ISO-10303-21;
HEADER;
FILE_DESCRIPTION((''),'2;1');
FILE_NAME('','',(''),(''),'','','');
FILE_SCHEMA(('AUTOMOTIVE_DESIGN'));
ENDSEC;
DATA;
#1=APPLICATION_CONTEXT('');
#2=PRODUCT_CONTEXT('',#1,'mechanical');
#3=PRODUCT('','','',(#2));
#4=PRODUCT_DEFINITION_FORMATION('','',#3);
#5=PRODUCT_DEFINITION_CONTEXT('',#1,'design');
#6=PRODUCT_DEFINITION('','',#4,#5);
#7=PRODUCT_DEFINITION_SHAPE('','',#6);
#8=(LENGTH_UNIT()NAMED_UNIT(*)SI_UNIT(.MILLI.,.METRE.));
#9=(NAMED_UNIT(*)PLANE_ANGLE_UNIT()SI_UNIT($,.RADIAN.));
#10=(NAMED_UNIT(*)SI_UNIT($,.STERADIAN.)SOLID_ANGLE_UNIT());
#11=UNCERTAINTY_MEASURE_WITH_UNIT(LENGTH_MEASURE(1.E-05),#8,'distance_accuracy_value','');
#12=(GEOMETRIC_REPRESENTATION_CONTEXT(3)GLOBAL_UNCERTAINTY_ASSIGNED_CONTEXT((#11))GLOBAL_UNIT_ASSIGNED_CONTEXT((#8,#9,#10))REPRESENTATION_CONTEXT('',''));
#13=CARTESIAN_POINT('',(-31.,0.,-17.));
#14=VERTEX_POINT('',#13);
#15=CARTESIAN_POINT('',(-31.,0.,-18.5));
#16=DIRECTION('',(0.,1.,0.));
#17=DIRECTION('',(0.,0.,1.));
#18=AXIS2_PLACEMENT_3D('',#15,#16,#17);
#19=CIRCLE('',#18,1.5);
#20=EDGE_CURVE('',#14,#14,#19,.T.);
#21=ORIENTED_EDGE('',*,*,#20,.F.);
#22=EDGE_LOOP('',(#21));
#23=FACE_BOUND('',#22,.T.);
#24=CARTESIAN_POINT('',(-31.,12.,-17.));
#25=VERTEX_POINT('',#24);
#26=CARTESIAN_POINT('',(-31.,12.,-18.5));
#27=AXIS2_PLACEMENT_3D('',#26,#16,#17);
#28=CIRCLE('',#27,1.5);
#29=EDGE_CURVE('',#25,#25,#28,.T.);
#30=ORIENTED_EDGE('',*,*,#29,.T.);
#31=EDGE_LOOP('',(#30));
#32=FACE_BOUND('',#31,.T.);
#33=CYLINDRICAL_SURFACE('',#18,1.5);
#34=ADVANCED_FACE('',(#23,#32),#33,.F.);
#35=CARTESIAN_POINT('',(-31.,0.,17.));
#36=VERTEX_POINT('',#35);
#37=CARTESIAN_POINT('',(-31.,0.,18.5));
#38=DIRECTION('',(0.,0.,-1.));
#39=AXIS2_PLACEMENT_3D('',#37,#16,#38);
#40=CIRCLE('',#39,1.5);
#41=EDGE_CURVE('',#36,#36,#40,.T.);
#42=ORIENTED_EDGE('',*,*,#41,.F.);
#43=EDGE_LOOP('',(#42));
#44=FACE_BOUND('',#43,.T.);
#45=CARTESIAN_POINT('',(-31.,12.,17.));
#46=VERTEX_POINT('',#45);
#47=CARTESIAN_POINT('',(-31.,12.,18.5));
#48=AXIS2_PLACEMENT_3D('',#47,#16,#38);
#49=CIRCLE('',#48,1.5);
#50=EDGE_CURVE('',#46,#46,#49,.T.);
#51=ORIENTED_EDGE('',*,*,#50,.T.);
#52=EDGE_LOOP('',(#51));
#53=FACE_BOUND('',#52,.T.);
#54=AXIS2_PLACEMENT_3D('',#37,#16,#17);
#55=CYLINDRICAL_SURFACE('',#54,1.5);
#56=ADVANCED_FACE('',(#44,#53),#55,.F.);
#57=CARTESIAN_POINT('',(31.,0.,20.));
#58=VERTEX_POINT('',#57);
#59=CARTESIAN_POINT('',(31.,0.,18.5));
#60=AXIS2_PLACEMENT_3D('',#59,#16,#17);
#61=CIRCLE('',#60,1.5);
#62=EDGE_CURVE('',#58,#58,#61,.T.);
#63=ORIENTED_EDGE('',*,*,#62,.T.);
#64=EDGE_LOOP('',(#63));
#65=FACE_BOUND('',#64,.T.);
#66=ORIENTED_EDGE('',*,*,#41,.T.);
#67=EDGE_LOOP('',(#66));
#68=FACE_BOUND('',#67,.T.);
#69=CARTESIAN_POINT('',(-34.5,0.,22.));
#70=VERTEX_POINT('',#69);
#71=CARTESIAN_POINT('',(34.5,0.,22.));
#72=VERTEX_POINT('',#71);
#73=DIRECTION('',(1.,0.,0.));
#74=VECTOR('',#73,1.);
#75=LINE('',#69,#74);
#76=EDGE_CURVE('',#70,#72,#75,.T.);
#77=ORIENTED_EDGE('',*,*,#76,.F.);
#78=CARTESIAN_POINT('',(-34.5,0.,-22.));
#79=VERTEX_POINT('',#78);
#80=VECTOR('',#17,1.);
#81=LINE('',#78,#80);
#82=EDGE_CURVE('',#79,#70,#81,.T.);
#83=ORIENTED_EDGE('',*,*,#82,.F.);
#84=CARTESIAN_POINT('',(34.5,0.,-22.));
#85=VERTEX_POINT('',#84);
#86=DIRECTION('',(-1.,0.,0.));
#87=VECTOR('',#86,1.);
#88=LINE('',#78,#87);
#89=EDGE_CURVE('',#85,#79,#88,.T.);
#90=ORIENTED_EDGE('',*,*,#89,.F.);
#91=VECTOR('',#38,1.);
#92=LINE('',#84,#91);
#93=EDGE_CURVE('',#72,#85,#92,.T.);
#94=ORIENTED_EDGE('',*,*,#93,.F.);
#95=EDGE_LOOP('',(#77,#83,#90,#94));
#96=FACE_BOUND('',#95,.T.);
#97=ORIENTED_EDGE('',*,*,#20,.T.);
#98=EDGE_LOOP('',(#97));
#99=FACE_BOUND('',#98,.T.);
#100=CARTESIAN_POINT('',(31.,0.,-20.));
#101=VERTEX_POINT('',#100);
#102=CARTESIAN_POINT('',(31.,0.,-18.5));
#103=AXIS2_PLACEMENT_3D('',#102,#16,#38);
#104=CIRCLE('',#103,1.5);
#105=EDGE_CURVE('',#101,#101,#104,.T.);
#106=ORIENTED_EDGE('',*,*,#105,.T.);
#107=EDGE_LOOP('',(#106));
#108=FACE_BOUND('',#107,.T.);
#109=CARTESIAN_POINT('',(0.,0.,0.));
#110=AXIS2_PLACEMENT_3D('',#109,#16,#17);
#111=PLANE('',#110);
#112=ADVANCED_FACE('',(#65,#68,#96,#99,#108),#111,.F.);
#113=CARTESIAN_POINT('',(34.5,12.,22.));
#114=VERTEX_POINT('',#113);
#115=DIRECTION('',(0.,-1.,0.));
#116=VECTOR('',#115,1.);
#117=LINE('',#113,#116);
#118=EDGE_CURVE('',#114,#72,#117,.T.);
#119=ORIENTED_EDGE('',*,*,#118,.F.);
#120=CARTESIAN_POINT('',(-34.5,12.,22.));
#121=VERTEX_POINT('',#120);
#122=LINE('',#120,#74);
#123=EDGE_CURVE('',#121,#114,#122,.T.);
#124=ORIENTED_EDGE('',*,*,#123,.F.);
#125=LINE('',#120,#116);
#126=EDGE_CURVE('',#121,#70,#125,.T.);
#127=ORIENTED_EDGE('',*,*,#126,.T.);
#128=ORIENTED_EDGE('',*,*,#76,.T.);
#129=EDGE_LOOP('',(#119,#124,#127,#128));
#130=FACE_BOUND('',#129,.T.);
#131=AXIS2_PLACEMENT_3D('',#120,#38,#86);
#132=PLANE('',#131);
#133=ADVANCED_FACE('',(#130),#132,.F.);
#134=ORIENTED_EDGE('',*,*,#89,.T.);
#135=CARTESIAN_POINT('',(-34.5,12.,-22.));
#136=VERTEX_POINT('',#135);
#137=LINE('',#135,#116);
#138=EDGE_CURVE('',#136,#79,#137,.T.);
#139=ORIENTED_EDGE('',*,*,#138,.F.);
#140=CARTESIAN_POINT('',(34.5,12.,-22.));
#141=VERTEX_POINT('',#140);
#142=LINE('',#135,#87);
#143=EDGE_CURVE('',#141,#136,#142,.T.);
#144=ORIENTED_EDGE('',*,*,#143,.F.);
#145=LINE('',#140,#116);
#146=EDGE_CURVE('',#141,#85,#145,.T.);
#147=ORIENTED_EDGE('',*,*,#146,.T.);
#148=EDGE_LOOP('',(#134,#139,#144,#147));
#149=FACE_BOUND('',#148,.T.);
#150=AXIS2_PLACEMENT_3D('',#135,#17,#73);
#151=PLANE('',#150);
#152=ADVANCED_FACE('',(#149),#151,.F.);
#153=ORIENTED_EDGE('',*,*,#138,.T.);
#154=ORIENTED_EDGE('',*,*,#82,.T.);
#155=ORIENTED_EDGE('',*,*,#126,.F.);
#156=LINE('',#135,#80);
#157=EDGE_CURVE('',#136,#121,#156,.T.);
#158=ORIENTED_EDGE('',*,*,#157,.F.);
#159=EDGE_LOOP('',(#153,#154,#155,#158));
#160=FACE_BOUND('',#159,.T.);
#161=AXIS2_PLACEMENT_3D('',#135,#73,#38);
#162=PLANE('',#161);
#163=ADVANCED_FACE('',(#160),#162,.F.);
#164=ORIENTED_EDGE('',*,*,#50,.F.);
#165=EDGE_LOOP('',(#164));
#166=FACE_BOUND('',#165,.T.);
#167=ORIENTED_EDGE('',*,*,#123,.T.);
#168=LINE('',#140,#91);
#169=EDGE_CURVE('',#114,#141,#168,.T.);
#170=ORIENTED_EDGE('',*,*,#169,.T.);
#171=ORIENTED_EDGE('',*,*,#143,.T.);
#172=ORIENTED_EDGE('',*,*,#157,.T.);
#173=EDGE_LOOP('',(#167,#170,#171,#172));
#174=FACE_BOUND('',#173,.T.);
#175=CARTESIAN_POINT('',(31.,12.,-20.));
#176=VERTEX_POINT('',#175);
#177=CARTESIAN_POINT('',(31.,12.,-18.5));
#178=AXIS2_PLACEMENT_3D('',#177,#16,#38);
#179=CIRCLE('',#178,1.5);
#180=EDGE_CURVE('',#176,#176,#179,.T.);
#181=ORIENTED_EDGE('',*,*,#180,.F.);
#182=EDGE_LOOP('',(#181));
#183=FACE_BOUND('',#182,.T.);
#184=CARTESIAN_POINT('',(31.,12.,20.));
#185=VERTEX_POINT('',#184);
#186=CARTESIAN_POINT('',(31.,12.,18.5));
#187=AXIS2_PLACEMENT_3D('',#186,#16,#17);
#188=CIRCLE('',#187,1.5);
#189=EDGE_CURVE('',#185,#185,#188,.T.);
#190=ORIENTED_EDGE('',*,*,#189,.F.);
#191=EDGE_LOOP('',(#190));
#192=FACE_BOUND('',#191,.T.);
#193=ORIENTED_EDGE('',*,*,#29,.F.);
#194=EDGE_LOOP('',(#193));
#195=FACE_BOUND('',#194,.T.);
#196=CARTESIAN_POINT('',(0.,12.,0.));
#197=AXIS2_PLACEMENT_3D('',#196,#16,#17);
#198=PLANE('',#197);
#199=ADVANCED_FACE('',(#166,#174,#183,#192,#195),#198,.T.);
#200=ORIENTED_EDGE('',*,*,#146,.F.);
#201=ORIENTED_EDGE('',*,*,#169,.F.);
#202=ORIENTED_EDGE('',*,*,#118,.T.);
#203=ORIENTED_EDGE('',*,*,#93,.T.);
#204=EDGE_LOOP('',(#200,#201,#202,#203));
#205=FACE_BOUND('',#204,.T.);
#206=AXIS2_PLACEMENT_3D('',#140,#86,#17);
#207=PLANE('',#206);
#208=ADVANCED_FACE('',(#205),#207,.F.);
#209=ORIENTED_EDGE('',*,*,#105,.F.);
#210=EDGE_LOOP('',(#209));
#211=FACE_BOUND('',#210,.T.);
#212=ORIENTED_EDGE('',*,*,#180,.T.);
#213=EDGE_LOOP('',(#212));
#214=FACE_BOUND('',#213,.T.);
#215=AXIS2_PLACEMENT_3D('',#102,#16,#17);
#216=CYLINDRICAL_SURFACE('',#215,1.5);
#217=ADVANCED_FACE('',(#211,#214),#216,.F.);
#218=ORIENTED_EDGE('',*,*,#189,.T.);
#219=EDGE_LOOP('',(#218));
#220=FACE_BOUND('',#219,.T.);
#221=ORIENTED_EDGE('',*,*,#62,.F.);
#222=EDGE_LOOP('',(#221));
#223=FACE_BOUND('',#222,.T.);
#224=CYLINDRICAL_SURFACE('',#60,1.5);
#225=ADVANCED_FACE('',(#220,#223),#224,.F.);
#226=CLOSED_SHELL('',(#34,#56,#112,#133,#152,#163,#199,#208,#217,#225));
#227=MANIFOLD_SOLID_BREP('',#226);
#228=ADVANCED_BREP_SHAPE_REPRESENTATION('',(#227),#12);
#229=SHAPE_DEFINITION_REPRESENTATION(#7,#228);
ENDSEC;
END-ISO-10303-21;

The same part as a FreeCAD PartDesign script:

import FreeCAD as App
import Part
import Sketcher
from FreeCAD import Vector
Q = App.Units.Quantity


def add_polygon(sketch, points):
    """Adds a closed chain of lines whose ends are joined by coincident constraints."""
    first, n = sketch.GeometryCount, len(points)
    for a, b in zip(points, points[1:] + points[:1]):
        sketch.addGeometry(Part.LineSegment(App.Vector(*a, 0), App.Vector(*b, 0)), False)
    for i in range(n):
        sketch.addConstraint(Sketcher.Constraint("Coincident", first + i, 2, first + (i + 1) % n, 1))

doc = App.newDocument("Part")
params = doc.addObject("Spreadsheet::Sheet", "Params")
for row, (alias, value) in enumerate([
    ("sketch1_width", "69 mm"),
    ("sketch1_height", "44 mm"),
    ("pad1_length", "12 mm"),
    ("sketch2_diameter", "3 mm"),
], start=1):
    params.set(f"A{row}", alias)
    params.set(f"B{row}", "=" + value)
    params.setAlias(f"B{row}", alias)

body = doc.addObject("PartDesign::Body", "Body")

# Sketch on XZ plane
sketch1 = doc.addObject("Sketcher::SketchObject", "Sketch")
body.addObject(sketch1)
sketch1.AttachmentSupport = (doc.XZ_Plane, [""])
sketch1.MapMode = "FlatFace"
add_polygon(sketch1, [(-34, -22), (-34, 22), (34, 22), (34, -22)])  # lines 0-3
sketch1.addConstraint([
    Sketcher.Constraint("Vertical", 0),
    Sketcher.Constraint("Horizontal", 1),
    Sketcher.Constraint("Vertical", 2),
    Sketcher.Constraint("Horizontal", 3),
    Sketcher.Constraint("Symmetric", 0, 2, 2, 2, -1, 1),
    Sketcher.Constraint("DistanceX", 1, 1, 1, 2, Q("69 mm")),
    Sketcher.Constraint("DistanceY", 0, 1, 0, 2, Q("44 mm")),
])
sketch1.setExpression("Constraints[9]", "Params.sketch1_width")
sketch1.setExpression("Constraints[10]", "Params.sketch1_height")
pad1 = doc.addObject("PartDesign::Pad", "Pad")
body.addObject(pad1)
pad1.Profile = sketch1
pad1.setExpression("Length", "Params.pad1_length")
pad1.Reversed = True

# Sketch on XZ plane
sketch2 = doc.addObject("Sketcher::SketchObject", "Sketch001")
body.addObject(sketch2)
sketch2.AttachmentSupport = (doc.XZ_Plane, [""])
sketch2.MapMode = "FlatFace"
sketch2.AttachmentOffset = App.Placement(Vector(0, 0, -12), App.Rotation())
sketch2.addGeometry([
    Part.Circle(Vector(-31, -18.5, 0), Vector(0, 0, 1), 1.5),
    Part.Circle(Vector(-31, 18.5, 0), Vector(0, 0, 1), 1.5),
    Part.Circle(Vector(31, 18.5, 0), Vector(0, 0, 1), 1.5),
    Part.Circle(Vector(31, -18.5, 0), Vector(0, 0, 1), 1.5),
], False)
sketch2.addConstraint([
    Sketcher.Constraint("Equal", 0, 1),
    Sketcher.Constraint("Equal", 1, 2),
    Sketcher.Constraint("Equal", 2, 3),
    Sketcher.Constraint("Symmetric", 0, 3, 2, 3, -1, 1),
    Sketcher.Constraint("Symmetric", 1, 3, 3, 3, -1, 1),
    Sketcher.Constraint("Symmetric", 1, 3, 2, 3, -2),
    Sketcher.Constraint("Diameter", 0, Q("3 mm")),
    Sketcher.Constraint("DistanceX", 0, 3, -1, 1, Q("31 mm")),
    Sketcher.Constraint("DistanceY", 0, 3, 1, 3, Q("37 mm")),
])
sketch2.setExpression("Constraints[6]", "Params.sketch2_diameter")
pocket1 = doc.addObject("PartDesign::Pocket", "Pocket")
body.addObject(pocket1)
pocket1.Profile = sketch2
pocket1.Type = "ThroughAll"
pocket1.Reversed = True

doc.recompute()
